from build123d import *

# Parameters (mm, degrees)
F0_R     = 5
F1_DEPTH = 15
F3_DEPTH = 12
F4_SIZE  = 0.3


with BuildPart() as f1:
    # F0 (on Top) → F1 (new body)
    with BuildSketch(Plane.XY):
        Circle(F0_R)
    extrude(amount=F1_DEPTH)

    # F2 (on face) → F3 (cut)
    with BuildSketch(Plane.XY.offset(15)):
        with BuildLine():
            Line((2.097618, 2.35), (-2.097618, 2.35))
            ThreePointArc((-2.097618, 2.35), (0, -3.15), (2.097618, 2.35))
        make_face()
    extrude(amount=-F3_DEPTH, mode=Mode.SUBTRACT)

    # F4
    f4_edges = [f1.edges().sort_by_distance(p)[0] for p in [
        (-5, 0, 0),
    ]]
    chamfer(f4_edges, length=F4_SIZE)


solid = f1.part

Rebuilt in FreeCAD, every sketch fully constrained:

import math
import FreeCAD as App
import Part
import Sketcher
from FreeCAD import Vector
Q = App.Units.Quantity


def edges_at(feature, points):
    """Names of the edges that pass closest to the given points."""
    edges = feature.Shape.Edges
    near = lambda p: min(range(len(edges)), key=lambda i: edges[i].distToShape(Part.Vertex(*p))[0])
    return sorted({f"Edge{near(p) + 1}" for p in points})

doc = App.newDocument("Part")
body = doc.addObject("PartDesign::Body", "Body")

# Sketch on XY plane
sketch1 = doc.addObject("Sketcher::SketchObject", "Sketch")
body.addObject(sketch1)
sketch1.AttachmentSupport = (doc.XY_Plane, [""])
sketch1.MapMode = "FlatFace"
sketch1.addGeometry(Part.Circle(Vector(0, 0, 0), Vector(0, 0, 1), 5), False)
sketch1.addConstraint([
    Sketcher.Constraint("Coincident", 0, 3, -1, 1),
    Sketcher.Constraint("Diameter", 0, Q("10 mm")),
])
pad1 = doc.addObject("PartDesign::Pad", "Pad")
body.addObject(pad1)
pad1.Profile = sketch1
pad1.Length = 15

# Sketch on XY plane
sketch2 = doc.addObject("Sketcher::SketchObject", "Sketch001")
body.addObject(sketch2)
sketch2.AttachmentSupport = (doc.XY_Plane, [""])
sketch2.MapMode = "FlatFace"
sketch2.AttachmentOffset = App.Placement(Vector(0, 0, 15), App.Rotation())
sketch2.addGeometry([
    Part.LineSegment(Vector(2.1, 2.4, 0), Vector(-2.1, 2.4, 0)),
    Part.ArcOfCircle(Part.Circle(Vector(0, 0, 0), Vector(0, 0, 1), 3.2), math.radians(132), math.radians(408)),
], False)
sketch2.addConstraint([
    Sketcher.Constraint("Coincident", 0, 1, 1, 2),
    Sketcher.Constraint("Coincident", 1, 1, 0, 2),
    Sketcher.Constraint("Horizontal", 0),
    Sketcher.Constraint("Coincident", 1, 3, -1, 1),
    Sketcher.Constraint("Radius", 1, Q("3.15 mm")),
    Sketcher.Constraint("DistanceY", -1, 1, 0, 1, Q("2.35 mm")),
])
pocket1 = doc.addObject("PartDesign::Pocket", "Pocket")
body.addObject(pocket1)
pocket1.Profile = sketch2
pocket1.Length = 12
doc.recompute()

chamfer = doc.addObject("PartDesign::Chamfer", "Chamfer")
body.addObject(chamfer)
chamfer.Base = (pocket1, edges_at(pocket1, [(-5, 0, 0)]))
chamfer.Size = 0.3

doc.recompute()
